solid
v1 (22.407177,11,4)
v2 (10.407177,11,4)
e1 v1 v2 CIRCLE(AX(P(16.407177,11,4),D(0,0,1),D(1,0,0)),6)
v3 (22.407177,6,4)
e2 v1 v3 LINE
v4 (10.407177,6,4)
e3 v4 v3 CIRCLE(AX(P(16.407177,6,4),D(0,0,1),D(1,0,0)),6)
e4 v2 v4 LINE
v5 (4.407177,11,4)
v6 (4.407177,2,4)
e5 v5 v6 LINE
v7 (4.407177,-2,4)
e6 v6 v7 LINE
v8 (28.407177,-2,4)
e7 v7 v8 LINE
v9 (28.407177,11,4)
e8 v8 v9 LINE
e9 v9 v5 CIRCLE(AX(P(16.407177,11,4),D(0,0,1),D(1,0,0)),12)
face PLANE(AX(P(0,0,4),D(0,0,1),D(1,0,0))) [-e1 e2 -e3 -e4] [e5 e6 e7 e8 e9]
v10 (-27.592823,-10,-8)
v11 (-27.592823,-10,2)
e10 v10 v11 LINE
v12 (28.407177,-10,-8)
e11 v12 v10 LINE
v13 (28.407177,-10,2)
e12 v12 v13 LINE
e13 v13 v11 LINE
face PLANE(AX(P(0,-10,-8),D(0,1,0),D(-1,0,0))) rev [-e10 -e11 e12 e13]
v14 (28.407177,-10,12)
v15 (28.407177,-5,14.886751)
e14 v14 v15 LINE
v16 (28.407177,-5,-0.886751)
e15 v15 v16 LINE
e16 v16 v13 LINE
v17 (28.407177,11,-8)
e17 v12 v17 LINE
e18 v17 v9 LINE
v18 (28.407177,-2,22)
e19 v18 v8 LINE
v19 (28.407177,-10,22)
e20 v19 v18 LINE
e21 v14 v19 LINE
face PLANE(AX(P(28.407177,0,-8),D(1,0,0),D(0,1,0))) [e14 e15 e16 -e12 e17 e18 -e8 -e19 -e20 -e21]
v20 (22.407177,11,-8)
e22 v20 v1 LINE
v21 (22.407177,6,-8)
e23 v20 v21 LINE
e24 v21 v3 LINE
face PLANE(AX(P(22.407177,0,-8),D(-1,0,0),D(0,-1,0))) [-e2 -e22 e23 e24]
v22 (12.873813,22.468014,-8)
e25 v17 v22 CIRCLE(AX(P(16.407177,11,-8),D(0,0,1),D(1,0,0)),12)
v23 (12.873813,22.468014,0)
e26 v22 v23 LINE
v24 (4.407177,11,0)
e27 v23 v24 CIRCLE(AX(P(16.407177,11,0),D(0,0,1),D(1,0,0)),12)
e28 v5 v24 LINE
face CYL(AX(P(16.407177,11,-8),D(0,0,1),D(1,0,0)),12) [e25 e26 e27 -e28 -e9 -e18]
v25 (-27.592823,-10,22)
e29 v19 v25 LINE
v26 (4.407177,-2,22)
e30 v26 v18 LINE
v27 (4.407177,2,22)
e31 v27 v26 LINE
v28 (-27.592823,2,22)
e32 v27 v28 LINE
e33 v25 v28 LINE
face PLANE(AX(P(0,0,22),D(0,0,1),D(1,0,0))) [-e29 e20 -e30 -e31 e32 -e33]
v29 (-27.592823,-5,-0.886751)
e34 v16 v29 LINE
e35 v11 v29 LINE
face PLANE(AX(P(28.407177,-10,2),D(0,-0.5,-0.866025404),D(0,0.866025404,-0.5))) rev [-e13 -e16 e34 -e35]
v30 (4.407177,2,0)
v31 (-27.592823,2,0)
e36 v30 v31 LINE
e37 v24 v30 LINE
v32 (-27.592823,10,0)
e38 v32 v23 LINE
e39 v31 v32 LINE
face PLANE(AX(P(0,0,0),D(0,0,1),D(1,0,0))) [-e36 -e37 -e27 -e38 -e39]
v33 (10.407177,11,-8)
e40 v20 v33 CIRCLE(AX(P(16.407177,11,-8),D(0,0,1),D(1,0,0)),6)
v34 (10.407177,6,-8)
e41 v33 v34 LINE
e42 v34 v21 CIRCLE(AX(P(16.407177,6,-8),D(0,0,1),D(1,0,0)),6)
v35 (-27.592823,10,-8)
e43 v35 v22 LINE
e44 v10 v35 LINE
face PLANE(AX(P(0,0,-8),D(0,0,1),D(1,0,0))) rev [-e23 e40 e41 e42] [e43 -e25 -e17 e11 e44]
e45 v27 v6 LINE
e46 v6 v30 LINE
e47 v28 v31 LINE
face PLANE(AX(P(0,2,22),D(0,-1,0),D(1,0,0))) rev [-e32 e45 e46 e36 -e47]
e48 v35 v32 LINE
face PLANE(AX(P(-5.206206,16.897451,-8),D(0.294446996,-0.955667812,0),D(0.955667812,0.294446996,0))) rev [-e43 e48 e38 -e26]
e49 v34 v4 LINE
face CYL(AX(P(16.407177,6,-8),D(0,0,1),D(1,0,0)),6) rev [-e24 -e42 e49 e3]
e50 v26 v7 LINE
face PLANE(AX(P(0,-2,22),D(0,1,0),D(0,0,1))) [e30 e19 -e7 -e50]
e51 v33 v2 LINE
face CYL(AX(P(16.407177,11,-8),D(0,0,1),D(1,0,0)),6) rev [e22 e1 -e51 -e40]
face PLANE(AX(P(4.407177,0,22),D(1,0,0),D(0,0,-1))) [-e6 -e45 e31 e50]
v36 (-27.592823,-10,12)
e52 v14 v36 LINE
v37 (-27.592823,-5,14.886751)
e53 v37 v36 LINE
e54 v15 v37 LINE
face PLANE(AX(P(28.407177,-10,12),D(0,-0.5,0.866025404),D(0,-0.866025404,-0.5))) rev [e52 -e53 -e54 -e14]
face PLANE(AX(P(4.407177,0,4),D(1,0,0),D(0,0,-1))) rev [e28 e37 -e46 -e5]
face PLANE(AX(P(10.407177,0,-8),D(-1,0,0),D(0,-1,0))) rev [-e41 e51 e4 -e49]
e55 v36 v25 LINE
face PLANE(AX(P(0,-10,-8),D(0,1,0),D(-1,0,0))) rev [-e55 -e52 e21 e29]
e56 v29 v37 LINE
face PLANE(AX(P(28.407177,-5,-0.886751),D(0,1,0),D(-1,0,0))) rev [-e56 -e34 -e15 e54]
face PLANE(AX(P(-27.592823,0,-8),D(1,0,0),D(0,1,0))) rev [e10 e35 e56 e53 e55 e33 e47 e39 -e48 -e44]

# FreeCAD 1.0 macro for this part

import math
import FreeCAD as App
import Part
import Sketcher

V = App.Vector
Q = App.Units.Quantity

doc = App.newDocument("Part")
body = doc.addObject("PartDesign::Body", "Body")

sketch1 = body.newObject("Sketcher::SketchObject", "Sketch")
sketch1.AttachmentSupport = (doc.getObject("XY_Plane"), [""])
sketch1.MapMode = "FlatFace"
sketch1.addGeometry([
    Part.LineSegment(V(-28, 10, 0), V(-28, -10, 0)),
    Part.LineSegment(V(-28, -10, 0), V(28, -10, 0)),
    Part.LineSegment(V(28, -10, 0), V(28, 11, 0)),
    Part.ArcOfCircle(Part.Circle(V(16, 11, 0), V(0, 0, 1), 12), math.radians(0), math.radians(107)),
    Part.LineSegment(V(13, 22, 0), V(-28, 10, 0)),
    Part.ArcOfCircle(Part.Circle(V(16, 6, 0), V(0, 0, 1), 6), math.radians(180), math.radians(360)),
    Part.LineSegment(V(10, 6, 0), V(10, 11, 0)),
    Part.ArcOfCircle(Part.Circle(V(16, 11, 0), V(0, 0, 1), 6), math.radians(0), math.radians(180)),
    Part.LineSegment(V(22, 11, 0), V(22, 6, 0)),
], False)
sketch1.addConstraint([
    Sketcher.Constraint("Coincident", 0, 2, 1, 1),
    Sketcher.Constraint("Coincident", 1, 2, 2, 1),
    Sketcher.Constraint("Tangent", 2, 2, 3, 1),
    Sketcher.Constraint("Tangent", 3, 2, 4, 1),
    Sketcher.Constraint("Coincident", 4, 2, 0, 1),
    Sketcher.Constraint("Tangent", 5, 1, 6, 1),
    Sketcher.Constraint("Tangent", 6, 2, 7, 2),
    Sketcher.Constraint("Tangent", 7, 1, 8, 1),
    Sketcher.Constraint("Tangent", 8, 2, 5, 2),
    Sketcher.Constraint("Vertical", 0),
    Sketcher.Constraint("Horizontal", 1),
    Sketcher.Constraint("Vertical", 2),
    Sketcher.Constraint("Vertical", 6),
    Sketcher.Constraint("Vertical", 8),
    Sketcher.Constraint("Coincident", 7, 3, 3, 3),
    Sketcher.Constraint("Radius", 3, 12.0),
    Sketcher.Constraint("Radius", 5, 6.0),
    Sketcher.Constraint("DistanceX", 1, 1, 1, 2, 56.0),
    Sketcher.Constraint("DistanceY", 0, 2, 0, 1, 20.0),
    Sketcher.Constraint("DistanceY", 2, 1, 2, 2, 21.0),
    Sketcher.Constraint("DistanceY", 6, 1, 6, 2, 5.0),
    Sketcher.Constraint("DistanceY", -1, 1, 3, 3, 11.0),
    Sketcher.Constraint("DistanceX", -1, 1, 3, 3, 16.407177),
])
pad1 = body.newObject("PartDesign::Pad", "Pad")
pad1.Profile = sketch1
pad1.Length = 8
pad1.Reversed = True

sketch2 = body.newObject("Sketcher::SketchObject", "Sketch001")
sketch2.AttachmentSupport = (doc.getObject("XY_Plane"), [""])
sketch2.MapMode = "FlatFace"
sketch2.AttachmentOffset = App.Placement(V(0, 0, 4), App.Rotation())
sketch2.addGeometry([
    Part.LineSegment(V(4, -2, 0), V(28, -2, 0)),
    Part.LineSegment(V(28, -2, 0), V(28, 11, 0)),
    Part.ArcOfCircle(Part.Circle(V(16, 11, 0), V(0, 0, 1), 12), math.radians(0), math.radians(107)),
    Part.ArcOfCircle(Part.Circle(V(16, 11, 0), V(0, 0, 1), 12), math.radians(107), math.radians(180)),
    Part.LineSegment(V(4, 11, 0), V(4, -2, 0)),
    Part.LineSegment(V(10, 6, 0), V(10, 11, 0)),
    Part.ArcOfCircle(Part.Circle(V(16, 11, 0), V(0, 0, 1), 6), math.radians(0), math.radians(180)),
    Part.LineSegment(V(22, 11, 0), V(22, 6, 0)),
    Part.ArcOfCircle(Part.Circle(V(16, 6, 0), V(0, 0, 1), 6), math.radians(180), math.radians(360)),
], False)
sketch2.addConstraint([
    Sketcher.Constraint("Coincident", 0, 2, 1, 1),
    Sketcher.Constraint("Tangent", 1, 2, 2, 1),
    Sketcher.Constraint("Tangent", 2, 2, 3, 1),
    Sketcher.Constraint("Tangent", 3, 2, 4, 1),
    Sketcher.Constraint("Coincident", 4, 2, 0, 1),
    Sketcher.Constraint("Tangent", 5, 2, 6, 2),
    Sketcher.Constraint("Tangent", 6, 1, 7, 1),
    Sketcher.Constraint("Tangent", 7, 2, 8, 2),
    Sketcher.Constraint("Tangent", 8, 1, 5, 1),
    Sketcher.Constraint("Horizontal", 0),
    Sketcher.Constraint("Vertical", 1),
    Sketcher.Constraint("Vertical", 4),
    Sketcher.Constraint("Vertical", 5),
    Sketcher.Constraint("Vertical", 7),
    Sketcher.Constraint("Coincident", 6, 3, 2, 3),
    Sketcher.Constraint("Equal", 2, 3),
    Sketcher.Constraint("Radius", 2, 12.0),
    Sketcher.Constraint("Radius", 6, 6.0),
    Sketcher.Constraint("DistanceY", 1, 1, 1, 2, 13.0),
    Sketcher.Constraint("DistanceY", 5, 1, 5, 2, 5.0),
    Sketcher.Constraint("DistanceY", -1, 1, 2, 3, 11.0),
    Sketcher.Constraint("DistanceX", -1, 1, 2, 3, 16.407177),
    Sketcher.Constraint("DistanceX", -1, 1, 2, 2, 12.873813),
])
pad2 = body.newObject("PartDesign::Pad", "Pad001")
pad2.Profile = sketch2
pad2.Length = 4
pad2.Reversed = True

sketch3 = body.newObject("Sketcher::SketchObject", "Sketch002")
sketch3.AttachmentSupport = (doc.getObject("XY_Plane"), [""])
sketch3.MapMode = "FlatFace"
sketch3.addGeometry([
    Part.LineSegment(V(-27.6, -10, 0), V(28.4, -10, 0)),
    Part.LineSegment(V(28.4, -10, 0), V(28.4, -2, 0)),
    Part.LineSegment(V(28.4, -2, 0), V(4.4, -2, 0)),
    Part.LineSegment(V(4.4, -2, 0), V(4.4, 2, 0)),
    Part.LineSegment(V(4.4, 2, 0), V(-27.6, 2, 0)),
    Part.LineSegment(V(-27.6, 2, 0), V(-27.6, -10, 0)),
], False)
sketch3.addConstraint([
    Sketcher.Constraint("Coincident", 0, 2, 1, 1),
    Sketcher.Constraint("Coincident", 1, 2, 2, 1),
    Sketcher.Constraint("Coincident", 2, 2, 3, 1),
    Sketcher.Constraint("Coincident", 3, 2, 4, 1),
    Sketcher.Constraint("Coincident", 4, 2, 5, 1),
    Sketcher.Constraint("Coincident", 5, 2, 0, 1),
    Sketcher.Constraint("Horizontal", 0),
    Sketcher.Constraint("Vertical", 1),
    Sketcher.Constraint("Horizontal", 2),
    Sketcher.Constraint("Vertical", 3),
    Sketcher.Constraint("Horizontal", 4),
    Sketcher.Constraint("Vertical", 5),
    Sketcher.Constraint("DistanceX", 0, 1, 0, 2, 56.0),
    Sketcher.Constraint("DistanceX", 2, 2, 2, 1, 24.0),
    Sketcher.Constraint("DistanceY", 1, 1, 1, 2, 8.0),
    Sketcher.Constraint("DistanceY", 3, 1, 3, 2, 4.0),
    Sketcher.Constraint("DistanceY", 0, 2, -1, 1, 10.0),
    Sketcher.Constraint("DistanceX", -1, 1, 0, 2, 28.407177),
])
pad3 = body.newObject("PartDesign::Pad", "Pad002")
pad3.Profile = sketch3
pad3.Length = 22

sketch4 = body.newObject("Sketcher::SketchObject", "Sketch003")
sketch4.AttachmentSupport = (doc.getObject("YZ_Plane"), [""])
sketch4.MapMode = "FlatFace"
sketch4.AttachmentOffset = App.Placement(V(0, 0, -27.592823), App.Rotation())
sketch4.addGeometry([
    Part.LineSegment(V(-5, -1, 0), V(-10, 2, 0)),
    Part.LineSegment(V(-10, 2, 0), V(-10, 12, 0)),
    Part.LineSegment(V(-10, 12, 0), V(-5, 15, 0)),
    Part.LineSegment(V(-5, 15, 0), V(-5, -1, 0)),
], False)
sketch4.addConstraint([
    Sketcher.Constraint("Coincident", 0, 2, 1, 1),
    Sketcher.Constraint("Coincident", 1, 2, 2, 1),
    Sketcher.Constraint("Coincident", 2, 2, 3, 1),
    Sketcher.Constraint("Coincident", 3, 2, 0, 1),
    Sketcher.Constraint("Vertical", 1),
    Sketcher.Constraint("Vertical", 3),
    Sketcher.Constraint("Equal", 0, 2),
    Sketcher.Constraint("DistanceY", 1, 1, 1, 2, 10.0),
    Sketcher.Constraint("Angle", 0, Q("150 deg")),
    Sketcher.Constraint("DistanceX", 0, 2, -1, 1, 10.0),
    Sketcher.Constraint("DistanceY", -1, 1, 0, 2, 2.0),
    Sketcher.Constraint("DistanceX", 2, 2, -1, 1, 5.0),
])
pocket1 = body.newObject("PartDesign::Pocket", "Pocket")
pocket1.Profile = sketch4
pocket1.Type = "ThroughAll"
pocket1.Midplane = True

doc.recompute()
